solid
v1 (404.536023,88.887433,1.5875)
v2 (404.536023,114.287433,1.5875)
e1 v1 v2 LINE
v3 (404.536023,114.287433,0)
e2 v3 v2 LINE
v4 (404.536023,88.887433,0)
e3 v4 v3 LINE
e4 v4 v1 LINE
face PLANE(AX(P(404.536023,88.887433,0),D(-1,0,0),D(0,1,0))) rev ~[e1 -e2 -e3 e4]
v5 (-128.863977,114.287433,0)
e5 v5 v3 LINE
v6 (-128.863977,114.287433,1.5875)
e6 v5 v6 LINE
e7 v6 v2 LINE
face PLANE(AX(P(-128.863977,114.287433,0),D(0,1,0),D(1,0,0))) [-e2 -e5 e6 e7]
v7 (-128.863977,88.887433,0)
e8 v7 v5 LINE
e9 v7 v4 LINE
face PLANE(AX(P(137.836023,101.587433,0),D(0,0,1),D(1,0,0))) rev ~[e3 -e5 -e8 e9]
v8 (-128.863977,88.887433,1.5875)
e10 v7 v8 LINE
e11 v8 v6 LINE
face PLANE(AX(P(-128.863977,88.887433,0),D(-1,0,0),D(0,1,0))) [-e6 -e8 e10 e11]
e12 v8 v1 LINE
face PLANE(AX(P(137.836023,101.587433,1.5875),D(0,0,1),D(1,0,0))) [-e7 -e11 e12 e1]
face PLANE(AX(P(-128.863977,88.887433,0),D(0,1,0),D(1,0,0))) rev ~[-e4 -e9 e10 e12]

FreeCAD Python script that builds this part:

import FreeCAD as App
import Part
import Sketcher
from FreeCAD import Vector
Q = App.Units.Quantity


def add_polygon(sketch, points):
    """Adds a closed chain of lines whose ends are joined by coincident constraints."""
    first, n = sketch.GeometryCount, len(points)
    for a, b in zip(points, points[1:] + points[:1]):
        sketch.addGeometry(Part.LineSegment(App.Vector(*a, 0), App.Vector(*b, 0)), False)
    for i in range(n):
        sketch.addConstraint(Sketcher.Constraint("Coincident", first + i, 2, first + (i + 1) % n, 1))

doc = App.newDocument("Part")
body = doc.addObject("PartDesign::Body", "Body")

sketch1 = doc.addObject("Sketcher::SketchObject", "Sketch")
body.addObject(sketch1)
sketch1.AttachmentSupport = (doc.XY_Plane, [""])
sketch1.MapMode = "FlatFace"
add_polygon(sketch1, [(-129, 114), (-129, 89), (405, 89), (405, 114)])
sketch1.addConstraint([
    Sketcher.Constraint("Vertical", 0),
    Sketcher.Constraint("Horizontal", 1),
    Sketcher.Constraint("Vertical", 2),
    Sketcher.Constraint("Horizontal", 3),
    Sketcher.Constraint("DistanceX", 1, 1, 1, 2, Q("21 in")),
    Sketcher.Constraint("DistanceY", 0, 2, 0, 1, Q("1 in")),
    Sketcher.Constraint("DistanceX", 0, 2, -1, 1, 128.863977),
    Sketcher.Constraint("DistanceY", -1, 1, 0, 2, 88.887433),
])
pad1 = doc.addObject("PartDesign::Pad", "Pad")
body.addObject(pad1)
pad1.Profile = sketch1
pad1.Length = Q("0.0625 in")

doc.recompute()
